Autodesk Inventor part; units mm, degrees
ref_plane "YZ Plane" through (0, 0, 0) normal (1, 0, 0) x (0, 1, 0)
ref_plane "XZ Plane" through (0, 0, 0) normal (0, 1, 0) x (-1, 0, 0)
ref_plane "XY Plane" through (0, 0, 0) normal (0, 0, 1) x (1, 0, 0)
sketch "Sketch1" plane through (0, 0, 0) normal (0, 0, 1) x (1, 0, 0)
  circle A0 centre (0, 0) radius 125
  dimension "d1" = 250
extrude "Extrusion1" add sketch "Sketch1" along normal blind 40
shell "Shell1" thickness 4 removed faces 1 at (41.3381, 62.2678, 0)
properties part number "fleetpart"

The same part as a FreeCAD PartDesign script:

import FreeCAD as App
import Part
import Sketcher

V = App.Vector


def faces_at(feature, points):
    """Names of the faces that lie closest to the given points."""
    faces = feature.Shape.Faces
    near = lambda p: min(range(len(faces)), key=lambda i: faces[i].distToShape(Part.Vertex(*p))[0])
    return sorted({f"Face{near(p) + 1}" for p in points})

doc = App.newDocument("Part")
body = doc.addObject("PartDesign::Body", "Body")

# Sketch on XY plane
sketch1 = body.newObject("Sketcher::SketchObject", "Sketch")
sketch1.AttachmentSupport = (doc.getObject("XY_Plane"), [""])
sketch1.MapMode = "FlatFace"
sketch1.addGeometry(Part.Circle(V(0, 0, 0), V(0, 0, 1), 125), False)
sketch1.addConstraint(Sketcher.Constraint("Coincident", 0, 3, -1, 1))
sketch1.addConstraint(Sketcher.Constraint("Diameter", 0, 250.0))
pad1 = body.newObject("PartDesign::Pad", "Pad")
pad1.Profile = sketch1
pad1.Length = 40
doc.recompute()

thickness = body.newObject("PartDesign::Thickness", "Thickness")
thickness.Base = (pad1, faces_at(pad1, [(41.338, 62.268, 0)]))
thickness.Value = 4
thickness.Reversed = True
thickness.Join = "Intersection"

doc.recompute()
